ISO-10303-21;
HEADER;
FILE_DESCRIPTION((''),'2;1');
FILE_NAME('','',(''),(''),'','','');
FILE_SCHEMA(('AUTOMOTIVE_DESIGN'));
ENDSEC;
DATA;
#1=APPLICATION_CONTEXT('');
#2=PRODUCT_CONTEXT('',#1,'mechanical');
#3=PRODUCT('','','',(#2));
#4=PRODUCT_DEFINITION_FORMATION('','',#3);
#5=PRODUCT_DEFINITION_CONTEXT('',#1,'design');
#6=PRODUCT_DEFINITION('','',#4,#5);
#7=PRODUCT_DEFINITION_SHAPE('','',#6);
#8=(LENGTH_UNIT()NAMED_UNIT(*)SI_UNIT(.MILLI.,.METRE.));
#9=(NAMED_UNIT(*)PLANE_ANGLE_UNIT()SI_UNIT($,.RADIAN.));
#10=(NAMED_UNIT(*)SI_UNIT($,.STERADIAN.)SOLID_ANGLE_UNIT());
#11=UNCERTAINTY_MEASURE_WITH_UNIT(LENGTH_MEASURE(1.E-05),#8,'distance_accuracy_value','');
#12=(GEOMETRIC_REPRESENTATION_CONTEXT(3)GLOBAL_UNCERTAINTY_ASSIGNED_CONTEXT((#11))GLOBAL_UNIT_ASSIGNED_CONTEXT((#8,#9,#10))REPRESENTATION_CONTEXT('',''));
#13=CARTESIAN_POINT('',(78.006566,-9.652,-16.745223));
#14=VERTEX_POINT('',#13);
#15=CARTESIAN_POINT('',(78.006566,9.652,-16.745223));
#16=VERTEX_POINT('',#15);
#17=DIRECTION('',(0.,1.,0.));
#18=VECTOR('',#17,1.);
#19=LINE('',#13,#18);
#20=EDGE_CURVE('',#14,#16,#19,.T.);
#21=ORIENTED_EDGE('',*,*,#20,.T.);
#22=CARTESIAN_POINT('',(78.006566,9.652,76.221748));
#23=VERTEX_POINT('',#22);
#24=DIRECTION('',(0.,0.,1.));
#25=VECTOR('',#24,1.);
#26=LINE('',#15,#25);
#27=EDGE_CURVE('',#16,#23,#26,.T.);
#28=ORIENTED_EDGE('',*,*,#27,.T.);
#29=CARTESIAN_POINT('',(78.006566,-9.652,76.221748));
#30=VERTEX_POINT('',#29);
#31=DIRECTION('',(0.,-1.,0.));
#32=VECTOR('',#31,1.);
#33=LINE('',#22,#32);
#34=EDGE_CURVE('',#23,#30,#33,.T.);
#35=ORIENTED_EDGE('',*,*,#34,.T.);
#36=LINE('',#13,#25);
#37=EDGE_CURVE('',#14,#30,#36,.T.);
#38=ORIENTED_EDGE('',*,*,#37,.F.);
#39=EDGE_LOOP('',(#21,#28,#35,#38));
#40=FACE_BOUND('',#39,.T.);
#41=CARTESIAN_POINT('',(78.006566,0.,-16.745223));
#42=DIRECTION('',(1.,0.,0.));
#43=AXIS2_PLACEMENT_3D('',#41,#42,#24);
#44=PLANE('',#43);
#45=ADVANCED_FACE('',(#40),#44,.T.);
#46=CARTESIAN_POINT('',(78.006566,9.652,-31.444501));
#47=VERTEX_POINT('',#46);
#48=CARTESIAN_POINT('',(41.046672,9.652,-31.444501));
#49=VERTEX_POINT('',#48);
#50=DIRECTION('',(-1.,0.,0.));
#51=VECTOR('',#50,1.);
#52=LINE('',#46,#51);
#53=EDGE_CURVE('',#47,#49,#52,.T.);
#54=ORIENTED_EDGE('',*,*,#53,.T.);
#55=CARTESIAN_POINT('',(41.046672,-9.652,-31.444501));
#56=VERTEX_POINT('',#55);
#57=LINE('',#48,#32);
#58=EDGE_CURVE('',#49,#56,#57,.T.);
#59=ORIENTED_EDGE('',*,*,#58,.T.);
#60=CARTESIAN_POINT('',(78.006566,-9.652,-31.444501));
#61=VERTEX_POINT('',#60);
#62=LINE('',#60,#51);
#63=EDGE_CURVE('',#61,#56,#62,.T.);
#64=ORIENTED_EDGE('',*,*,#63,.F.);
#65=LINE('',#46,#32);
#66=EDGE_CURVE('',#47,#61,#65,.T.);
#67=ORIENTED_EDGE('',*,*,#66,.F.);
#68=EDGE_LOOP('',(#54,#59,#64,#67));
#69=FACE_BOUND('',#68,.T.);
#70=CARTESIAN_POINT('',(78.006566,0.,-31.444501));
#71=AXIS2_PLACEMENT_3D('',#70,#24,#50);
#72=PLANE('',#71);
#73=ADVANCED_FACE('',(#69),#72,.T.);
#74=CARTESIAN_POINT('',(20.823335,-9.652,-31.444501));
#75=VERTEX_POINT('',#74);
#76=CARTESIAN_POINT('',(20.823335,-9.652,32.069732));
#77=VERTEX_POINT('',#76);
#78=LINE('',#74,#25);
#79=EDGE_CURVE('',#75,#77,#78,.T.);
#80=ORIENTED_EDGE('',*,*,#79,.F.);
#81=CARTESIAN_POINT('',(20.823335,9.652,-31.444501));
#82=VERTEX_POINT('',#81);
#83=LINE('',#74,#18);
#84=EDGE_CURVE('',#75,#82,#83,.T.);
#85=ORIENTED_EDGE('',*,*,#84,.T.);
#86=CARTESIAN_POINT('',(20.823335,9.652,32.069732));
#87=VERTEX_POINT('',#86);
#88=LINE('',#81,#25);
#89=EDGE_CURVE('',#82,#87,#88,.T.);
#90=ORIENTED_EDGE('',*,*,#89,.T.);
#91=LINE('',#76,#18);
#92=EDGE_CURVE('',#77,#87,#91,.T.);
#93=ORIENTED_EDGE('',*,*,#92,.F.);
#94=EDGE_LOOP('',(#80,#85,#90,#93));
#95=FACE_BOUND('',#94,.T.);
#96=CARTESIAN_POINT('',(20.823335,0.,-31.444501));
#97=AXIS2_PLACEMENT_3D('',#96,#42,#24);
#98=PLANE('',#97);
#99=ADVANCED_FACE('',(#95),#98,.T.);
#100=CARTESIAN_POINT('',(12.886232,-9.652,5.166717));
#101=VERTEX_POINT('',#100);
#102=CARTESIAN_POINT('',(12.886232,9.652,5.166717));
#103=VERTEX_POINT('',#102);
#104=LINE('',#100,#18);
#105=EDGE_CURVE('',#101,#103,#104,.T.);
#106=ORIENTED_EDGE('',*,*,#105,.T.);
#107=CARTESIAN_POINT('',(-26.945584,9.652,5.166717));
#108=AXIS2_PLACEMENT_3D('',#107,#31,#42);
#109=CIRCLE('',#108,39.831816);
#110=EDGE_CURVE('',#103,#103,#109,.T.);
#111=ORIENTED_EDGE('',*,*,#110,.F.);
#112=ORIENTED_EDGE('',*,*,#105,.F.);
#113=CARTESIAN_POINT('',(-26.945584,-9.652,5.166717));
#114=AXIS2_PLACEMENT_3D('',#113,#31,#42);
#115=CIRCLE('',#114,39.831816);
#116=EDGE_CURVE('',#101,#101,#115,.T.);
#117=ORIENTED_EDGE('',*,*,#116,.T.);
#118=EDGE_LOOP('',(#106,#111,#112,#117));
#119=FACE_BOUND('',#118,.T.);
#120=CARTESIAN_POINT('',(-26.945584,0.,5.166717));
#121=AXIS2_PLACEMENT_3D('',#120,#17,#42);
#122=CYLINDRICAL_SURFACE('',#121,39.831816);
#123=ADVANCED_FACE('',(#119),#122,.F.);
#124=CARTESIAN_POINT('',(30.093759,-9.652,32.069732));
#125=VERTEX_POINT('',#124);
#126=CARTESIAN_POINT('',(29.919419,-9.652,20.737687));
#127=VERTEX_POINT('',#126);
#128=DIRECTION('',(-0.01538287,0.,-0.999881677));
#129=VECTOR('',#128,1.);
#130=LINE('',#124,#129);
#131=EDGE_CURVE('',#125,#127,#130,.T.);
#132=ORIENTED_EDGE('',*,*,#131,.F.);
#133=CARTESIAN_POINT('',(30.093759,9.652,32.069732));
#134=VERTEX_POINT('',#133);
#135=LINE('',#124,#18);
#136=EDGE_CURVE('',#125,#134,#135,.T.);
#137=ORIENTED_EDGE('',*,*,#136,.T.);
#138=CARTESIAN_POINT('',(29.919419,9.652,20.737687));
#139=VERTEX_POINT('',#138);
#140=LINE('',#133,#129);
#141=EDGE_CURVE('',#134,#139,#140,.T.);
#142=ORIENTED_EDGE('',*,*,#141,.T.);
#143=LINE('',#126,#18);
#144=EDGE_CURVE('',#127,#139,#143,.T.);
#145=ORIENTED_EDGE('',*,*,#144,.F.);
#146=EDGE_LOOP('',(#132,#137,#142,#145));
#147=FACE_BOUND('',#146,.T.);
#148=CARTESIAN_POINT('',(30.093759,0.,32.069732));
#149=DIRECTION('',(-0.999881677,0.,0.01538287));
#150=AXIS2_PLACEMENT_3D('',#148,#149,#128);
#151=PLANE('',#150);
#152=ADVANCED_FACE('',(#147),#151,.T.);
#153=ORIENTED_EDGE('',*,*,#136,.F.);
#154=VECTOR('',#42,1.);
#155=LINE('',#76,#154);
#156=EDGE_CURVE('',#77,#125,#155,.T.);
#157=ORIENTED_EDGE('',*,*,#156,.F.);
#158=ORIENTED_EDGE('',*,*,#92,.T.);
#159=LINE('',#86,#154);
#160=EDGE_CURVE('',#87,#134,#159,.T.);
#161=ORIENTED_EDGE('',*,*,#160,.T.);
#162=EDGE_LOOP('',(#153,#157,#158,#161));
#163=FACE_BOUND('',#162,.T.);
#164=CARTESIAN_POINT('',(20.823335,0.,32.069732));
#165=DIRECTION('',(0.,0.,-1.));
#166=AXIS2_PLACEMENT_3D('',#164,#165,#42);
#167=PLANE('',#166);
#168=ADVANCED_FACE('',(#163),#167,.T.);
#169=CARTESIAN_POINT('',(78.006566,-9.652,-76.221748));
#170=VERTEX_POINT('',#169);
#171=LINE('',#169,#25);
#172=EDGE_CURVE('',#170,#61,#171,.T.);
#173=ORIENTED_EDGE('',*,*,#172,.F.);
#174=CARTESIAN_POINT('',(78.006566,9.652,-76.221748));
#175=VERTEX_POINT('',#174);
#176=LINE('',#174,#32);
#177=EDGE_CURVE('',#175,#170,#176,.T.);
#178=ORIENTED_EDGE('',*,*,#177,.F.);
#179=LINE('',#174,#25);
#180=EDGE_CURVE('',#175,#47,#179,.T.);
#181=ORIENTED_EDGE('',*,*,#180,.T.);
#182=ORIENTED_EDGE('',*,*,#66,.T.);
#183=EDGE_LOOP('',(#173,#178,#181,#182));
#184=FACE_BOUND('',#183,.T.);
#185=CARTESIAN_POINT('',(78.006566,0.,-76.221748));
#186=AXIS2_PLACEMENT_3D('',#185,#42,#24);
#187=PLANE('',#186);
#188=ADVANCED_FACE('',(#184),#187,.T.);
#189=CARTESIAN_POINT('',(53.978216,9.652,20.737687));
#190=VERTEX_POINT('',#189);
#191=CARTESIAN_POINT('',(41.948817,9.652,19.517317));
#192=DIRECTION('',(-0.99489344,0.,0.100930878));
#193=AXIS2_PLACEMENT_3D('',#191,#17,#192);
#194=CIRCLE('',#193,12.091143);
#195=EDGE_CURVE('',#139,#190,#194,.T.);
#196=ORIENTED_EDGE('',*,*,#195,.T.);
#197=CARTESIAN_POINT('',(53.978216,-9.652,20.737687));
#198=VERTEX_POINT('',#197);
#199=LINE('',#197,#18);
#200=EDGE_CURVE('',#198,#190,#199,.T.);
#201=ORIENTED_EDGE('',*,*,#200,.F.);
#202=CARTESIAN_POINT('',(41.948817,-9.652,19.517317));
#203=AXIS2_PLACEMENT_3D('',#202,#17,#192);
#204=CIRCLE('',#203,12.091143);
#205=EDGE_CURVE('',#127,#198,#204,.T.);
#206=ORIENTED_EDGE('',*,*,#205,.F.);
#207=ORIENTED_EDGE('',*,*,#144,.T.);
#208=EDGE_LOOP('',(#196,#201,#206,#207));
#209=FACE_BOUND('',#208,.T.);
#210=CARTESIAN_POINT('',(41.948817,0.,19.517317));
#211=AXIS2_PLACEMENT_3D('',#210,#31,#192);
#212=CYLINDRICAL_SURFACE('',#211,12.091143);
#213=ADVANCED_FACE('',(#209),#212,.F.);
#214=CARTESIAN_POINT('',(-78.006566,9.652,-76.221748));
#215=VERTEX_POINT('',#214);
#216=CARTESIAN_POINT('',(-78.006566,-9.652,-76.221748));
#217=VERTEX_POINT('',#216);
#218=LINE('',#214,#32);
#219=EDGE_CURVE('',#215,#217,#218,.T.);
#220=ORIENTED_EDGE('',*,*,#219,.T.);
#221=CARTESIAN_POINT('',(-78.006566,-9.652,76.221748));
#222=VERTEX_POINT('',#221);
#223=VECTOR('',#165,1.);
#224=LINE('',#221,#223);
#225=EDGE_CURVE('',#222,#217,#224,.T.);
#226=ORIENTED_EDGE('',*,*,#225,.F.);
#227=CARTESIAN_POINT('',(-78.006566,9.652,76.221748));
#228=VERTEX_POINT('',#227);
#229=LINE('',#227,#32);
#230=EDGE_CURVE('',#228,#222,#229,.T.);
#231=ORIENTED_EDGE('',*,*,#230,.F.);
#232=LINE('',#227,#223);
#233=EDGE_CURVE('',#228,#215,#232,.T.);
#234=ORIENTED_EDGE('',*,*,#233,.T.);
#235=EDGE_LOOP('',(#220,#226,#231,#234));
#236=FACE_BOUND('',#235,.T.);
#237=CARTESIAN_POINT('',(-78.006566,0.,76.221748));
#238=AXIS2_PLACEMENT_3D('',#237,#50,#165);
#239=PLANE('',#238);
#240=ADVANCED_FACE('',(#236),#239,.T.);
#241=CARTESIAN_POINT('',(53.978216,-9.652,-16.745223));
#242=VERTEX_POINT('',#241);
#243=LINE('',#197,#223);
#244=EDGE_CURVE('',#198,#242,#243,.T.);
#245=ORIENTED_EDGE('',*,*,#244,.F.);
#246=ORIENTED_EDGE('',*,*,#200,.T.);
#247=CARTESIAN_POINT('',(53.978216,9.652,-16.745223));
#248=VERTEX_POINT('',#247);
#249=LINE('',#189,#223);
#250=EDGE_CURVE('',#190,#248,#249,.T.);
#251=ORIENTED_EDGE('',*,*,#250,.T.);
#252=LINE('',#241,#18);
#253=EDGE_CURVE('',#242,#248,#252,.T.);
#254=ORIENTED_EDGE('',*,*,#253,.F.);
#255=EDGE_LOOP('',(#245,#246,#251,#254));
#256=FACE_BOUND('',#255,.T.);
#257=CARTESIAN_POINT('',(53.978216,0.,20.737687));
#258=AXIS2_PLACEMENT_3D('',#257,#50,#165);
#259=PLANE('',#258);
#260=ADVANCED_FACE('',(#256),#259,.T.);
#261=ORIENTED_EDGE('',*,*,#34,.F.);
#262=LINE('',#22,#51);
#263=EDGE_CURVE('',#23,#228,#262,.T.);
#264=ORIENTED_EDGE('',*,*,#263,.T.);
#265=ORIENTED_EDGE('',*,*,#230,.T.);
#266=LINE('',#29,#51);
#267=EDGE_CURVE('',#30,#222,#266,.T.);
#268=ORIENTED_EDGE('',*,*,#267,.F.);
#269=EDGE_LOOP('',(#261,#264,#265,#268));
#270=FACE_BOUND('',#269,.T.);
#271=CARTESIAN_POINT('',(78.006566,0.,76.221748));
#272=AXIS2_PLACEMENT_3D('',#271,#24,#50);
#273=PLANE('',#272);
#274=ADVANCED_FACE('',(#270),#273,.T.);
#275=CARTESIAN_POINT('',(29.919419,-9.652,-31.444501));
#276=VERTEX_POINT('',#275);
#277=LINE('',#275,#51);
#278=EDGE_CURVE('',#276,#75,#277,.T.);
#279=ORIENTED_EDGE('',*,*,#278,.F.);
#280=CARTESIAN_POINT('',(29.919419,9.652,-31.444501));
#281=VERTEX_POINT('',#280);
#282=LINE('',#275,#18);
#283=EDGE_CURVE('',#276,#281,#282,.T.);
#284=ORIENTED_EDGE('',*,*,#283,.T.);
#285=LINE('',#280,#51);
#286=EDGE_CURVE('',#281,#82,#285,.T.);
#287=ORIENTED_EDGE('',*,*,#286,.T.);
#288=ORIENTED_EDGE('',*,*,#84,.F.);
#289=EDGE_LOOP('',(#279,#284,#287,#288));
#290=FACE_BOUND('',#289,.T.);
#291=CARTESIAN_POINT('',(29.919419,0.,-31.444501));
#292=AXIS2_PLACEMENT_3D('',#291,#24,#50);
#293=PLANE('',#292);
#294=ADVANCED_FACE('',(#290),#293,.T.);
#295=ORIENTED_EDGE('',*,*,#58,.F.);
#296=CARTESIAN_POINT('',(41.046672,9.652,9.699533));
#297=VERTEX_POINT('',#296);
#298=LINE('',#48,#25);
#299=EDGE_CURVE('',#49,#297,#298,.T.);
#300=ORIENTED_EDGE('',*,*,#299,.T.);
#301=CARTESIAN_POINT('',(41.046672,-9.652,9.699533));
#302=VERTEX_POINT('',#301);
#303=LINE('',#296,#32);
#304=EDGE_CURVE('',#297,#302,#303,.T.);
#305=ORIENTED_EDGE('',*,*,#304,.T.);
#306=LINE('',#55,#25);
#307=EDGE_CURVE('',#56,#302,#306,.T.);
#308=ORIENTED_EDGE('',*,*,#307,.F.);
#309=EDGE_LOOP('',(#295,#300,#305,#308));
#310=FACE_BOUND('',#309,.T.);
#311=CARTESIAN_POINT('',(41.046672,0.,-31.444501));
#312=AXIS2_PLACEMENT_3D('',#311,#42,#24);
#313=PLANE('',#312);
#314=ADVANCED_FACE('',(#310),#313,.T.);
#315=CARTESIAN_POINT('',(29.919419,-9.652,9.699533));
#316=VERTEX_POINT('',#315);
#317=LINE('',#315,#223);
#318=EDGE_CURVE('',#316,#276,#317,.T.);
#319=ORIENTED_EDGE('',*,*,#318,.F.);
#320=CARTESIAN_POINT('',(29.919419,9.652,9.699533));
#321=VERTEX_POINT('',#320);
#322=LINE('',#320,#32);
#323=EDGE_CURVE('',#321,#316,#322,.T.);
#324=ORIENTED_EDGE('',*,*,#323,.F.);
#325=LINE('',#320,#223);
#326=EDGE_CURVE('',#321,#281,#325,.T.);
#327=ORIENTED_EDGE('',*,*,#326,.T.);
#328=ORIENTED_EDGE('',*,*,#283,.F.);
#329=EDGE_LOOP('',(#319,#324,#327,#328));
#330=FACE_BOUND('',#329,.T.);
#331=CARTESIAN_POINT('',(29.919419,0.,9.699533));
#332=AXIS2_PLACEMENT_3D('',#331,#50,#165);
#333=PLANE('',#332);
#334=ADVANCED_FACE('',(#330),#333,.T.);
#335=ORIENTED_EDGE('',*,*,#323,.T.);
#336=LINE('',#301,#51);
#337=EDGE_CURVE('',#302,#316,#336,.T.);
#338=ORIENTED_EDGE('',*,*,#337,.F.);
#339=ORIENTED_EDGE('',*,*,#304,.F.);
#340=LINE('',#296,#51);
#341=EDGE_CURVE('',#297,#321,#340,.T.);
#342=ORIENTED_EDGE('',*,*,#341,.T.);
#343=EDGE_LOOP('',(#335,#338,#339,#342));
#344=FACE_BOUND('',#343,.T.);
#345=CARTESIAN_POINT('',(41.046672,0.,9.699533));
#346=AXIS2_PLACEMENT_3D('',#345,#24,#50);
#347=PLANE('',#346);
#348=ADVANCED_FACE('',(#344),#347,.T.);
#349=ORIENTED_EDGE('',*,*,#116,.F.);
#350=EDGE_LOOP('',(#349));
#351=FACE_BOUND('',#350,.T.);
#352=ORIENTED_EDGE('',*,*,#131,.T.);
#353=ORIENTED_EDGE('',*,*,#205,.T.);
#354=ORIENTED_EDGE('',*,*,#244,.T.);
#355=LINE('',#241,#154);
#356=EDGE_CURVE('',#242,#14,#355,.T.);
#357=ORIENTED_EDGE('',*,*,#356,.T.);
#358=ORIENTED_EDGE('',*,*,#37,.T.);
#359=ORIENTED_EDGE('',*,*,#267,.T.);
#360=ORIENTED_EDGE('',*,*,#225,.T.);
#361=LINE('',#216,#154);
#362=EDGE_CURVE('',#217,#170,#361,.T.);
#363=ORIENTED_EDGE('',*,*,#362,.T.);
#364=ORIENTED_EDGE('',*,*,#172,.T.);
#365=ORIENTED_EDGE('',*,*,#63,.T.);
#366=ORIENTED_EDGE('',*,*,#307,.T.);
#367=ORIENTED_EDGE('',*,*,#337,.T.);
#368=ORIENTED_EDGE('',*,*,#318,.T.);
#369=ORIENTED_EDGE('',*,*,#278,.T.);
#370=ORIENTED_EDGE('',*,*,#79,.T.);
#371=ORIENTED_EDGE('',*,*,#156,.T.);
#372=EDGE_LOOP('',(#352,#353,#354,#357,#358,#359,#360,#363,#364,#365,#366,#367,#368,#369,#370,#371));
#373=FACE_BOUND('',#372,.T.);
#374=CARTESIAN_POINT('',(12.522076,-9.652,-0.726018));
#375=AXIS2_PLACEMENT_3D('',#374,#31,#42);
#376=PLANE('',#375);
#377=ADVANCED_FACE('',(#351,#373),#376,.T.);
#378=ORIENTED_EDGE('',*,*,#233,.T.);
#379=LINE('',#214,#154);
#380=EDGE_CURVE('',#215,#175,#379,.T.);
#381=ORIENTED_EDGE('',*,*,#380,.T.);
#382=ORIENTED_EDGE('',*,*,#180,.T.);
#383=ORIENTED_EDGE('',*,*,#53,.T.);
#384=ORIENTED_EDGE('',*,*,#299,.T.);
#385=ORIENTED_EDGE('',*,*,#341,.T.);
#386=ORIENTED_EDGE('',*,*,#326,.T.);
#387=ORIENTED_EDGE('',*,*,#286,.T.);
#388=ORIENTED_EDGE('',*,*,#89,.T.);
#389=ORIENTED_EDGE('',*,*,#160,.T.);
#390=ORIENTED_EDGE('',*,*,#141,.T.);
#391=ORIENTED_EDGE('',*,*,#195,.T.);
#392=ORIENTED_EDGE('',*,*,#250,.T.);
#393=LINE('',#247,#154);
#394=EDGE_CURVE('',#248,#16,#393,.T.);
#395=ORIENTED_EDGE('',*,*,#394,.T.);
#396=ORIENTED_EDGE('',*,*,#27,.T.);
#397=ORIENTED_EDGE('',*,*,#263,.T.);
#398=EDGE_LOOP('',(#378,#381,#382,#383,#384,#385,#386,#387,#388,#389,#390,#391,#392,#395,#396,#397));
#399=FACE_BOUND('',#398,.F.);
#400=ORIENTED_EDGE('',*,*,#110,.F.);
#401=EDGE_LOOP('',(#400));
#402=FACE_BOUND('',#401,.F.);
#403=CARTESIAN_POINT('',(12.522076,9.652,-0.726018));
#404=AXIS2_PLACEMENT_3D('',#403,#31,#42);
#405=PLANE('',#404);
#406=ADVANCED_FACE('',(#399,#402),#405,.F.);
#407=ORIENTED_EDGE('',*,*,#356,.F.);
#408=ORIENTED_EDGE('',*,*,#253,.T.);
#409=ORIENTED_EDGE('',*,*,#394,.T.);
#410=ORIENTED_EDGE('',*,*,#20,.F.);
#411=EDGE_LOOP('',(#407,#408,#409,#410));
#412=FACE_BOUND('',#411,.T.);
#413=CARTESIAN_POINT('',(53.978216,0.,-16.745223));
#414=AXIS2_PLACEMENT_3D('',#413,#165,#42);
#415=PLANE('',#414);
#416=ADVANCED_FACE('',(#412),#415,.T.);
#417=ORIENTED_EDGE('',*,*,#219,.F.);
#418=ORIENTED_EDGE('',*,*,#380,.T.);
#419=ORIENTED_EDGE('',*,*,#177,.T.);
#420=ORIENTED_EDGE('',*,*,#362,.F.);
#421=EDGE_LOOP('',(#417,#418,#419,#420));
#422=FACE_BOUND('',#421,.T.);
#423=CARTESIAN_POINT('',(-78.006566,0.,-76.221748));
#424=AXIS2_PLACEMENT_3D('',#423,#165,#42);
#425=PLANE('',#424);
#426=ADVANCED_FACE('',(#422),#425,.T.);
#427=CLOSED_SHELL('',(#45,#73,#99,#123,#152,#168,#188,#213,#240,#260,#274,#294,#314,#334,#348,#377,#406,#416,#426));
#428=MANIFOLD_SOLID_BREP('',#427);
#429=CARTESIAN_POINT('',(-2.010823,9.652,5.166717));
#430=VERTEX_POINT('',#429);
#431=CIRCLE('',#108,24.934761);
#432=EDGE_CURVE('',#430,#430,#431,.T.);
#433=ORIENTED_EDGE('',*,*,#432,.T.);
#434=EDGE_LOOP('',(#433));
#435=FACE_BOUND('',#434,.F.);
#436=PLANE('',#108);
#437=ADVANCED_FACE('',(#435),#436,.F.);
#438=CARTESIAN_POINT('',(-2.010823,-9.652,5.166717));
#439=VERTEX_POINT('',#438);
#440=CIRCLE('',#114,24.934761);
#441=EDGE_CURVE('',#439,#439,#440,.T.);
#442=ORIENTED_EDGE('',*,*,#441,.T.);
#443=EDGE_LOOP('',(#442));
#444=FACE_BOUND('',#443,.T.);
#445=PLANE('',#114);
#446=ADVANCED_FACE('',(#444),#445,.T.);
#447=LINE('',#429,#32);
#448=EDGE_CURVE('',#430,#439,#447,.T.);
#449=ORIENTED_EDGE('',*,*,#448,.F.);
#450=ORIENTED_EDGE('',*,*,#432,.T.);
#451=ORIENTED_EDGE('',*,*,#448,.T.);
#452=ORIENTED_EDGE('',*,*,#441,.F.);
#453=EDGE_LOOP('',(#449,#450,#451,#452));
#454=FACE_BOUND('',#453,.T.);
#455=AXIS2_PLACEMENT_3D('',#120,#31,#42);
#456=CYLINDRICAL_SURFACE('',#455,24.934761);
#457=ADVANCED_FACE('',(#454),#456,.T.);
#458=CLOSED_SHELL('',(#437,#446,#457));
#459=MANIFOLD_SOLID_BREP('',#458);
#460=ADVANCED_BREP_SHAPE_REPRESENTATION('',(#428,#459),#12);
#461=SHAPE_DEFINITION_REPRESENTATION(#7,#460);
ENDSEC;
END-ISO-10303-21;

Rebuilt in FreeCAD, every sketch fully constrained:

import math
import FreeCAD as App
import Part
import Sketcher

V = App.Vector
Q = App.Units.Quantity

doc = App.newDocument("Part")
body = doc.addObject("PartDesign::Body", "Body")

sketch1 = body.newObject("Sketcher::SketchObject", "Sketch")
sketch1.AttachmentSupport = (doc.getObject("XZ_Plane"), [""])
sketch1.MapMode = "FlatFace"
sketch1.addGeometry([
    Part.LineSegment(V(78, -17, 0), V(78, 76, 0)),
    Part.LineSegment(V(78, 76, 0), V(-78, 76, 0)),
    Part.LineSegment(V(-78, 76, 0), V(-78, -76, 0)),
    Part.LineSegment(V(-78, -76, 0), V(78, -76, 0)),
    Part.LineSegment(V(78, -76, 0), V(78, -31, 0)),
    Part.LineSegment(V(78, -31, 0), V(41, -31, 0)),
    Part.LineSegment(V(41, -31, 0), V(41, 10, 0)),
    Part.LineSegment(V(41, 10, 0), V(30, 10, 0)),
    Part.LineSegment(V(30, 10, 0), V(30, -31, 0)),
    Part.LineSegment(V(30, -31, 0), V(21, -31, 0)),
    Part.LineSegment(V(21, -31, 0), V(21, 32, 0)),
    Part.LineSegment(V(21, 32, 0), V(30, 32, 0)),
    Part.LineSegment(V(30, 32, 0), V(30, 21, 0)),
    Part.ArcOfCircle(Part.Circle(V(42, 20, 0), V(0, 0, 1), 12), math.radians(6), math.radians(174)),
    Part.LineSegment(V(54, 21, 0), V(54, -17, 0)),
    Part.LineSegment(V(54, -17, 0), V(78, -17, 0)),
    Part.Circle(V(-27, 5, 0), V(0, 0, 1), 40),
], False)
sketch1.addConstraint([
    Sketcher.Constraint("Coincident", 0, 2, 1, 1),
    Sketcher.Constraint("Coincident", 1, 2, 2, 1),
    Sketcher.Constraint("Coincident", 2, 2, 3, 1),
    Sketcher.Constraint("Coincident", 3, 2, 4, 1),
    Sketcher.Constraint("Coincident", 4, 2, 5, 1),
    Sketcher.Constraint("Coincident", 5, 2, 6, 1),
    Sketcher.Constraint("Coincident", 6, 2, 7, 1),
    Sketcher.Constraint("Coincident", 7, 2, 8, 1),
    Sketcher.Constraint("Coincident", 8, 2, 9, 1),
    Sketcher.Constraint("Coincident", 9, 2, 10, 1),
    Sketcher.Constraint("Coincident", 10, 2, 11, 1),
    Sketcher.Constraint("Coincident", 11, 2, 12, 1),
    Sketcher.Constraint("Coincident", 12, 2, 13, 2),
    Sketcher.Constraint("Coincident", 13, 1, 14, 1),
    Sketcher.Constraint("Coincident", 14, 2, 15, 1),
    Sketcher.Constraint("Coincident", 15, 2, 0, 1),
    Sketcher.Constraint("Vertical", 0),
    Sketcher.Constraint("Horizontal", 1),
    Sketcher.Constraint("Vertical", 2),
    Sketcher.Constraint("Horizontal", 3),
    Sketcher.Constraint("Vertical", 4),
    Sketcher.Constraint("Horizontal", 5),
    Sketcher.Constraint("Vertical", 6),
    Sketcher.Constraint("Horizontal", 7),
    Sketcher.Constraint("Vertical", 8),
    Sketcher.Constraint("Horizontal", 9),
    Sketcher.Constraint("Vertical", 10),
    Sketcher.Constraint("Horizontal", 11),
    Sketcher.Constraint("Vertical", 14),
    Sketcher.Constraint("Horizontal", 15),
    Sketcher.Constraint("Symmetric", 0, 2, 2, 2, -1, 1),
    Sketcher.Constraint("Horizontal", 5, 2, 8, 2),
    Sketcher.Constraint("Horizontal", 12, 2, 13, 1),
    Sketcher.Constraint("Vertical", 0, 2, 3, 2),
    Sketcher.Constraint("Vertical", 8, 2, 12, 2),
    Sketcher.Constraint("Diameter", 16, Q("79.663632 mm")),
    Sketcher.Constraint("Radius", 13, Q("12.091143 mm")),
    Sketcher.Constraint("DistanceX", 15, 1, 15, 2, Q("24.02835 mm")),
    Sketcher.Constraint("DistanceY", 0, 1, 0, 2, Q("92.966971 mm")),
    Sketcher.Constraint("DistanceY", 14, 2, 14, 1, Q("37.48291 mm")),
    Sketcher.Constraint("DistanceY", 4, 2, -1, 1, Q("31.444501 mm")),
    Sketcher.Constraint("DistanceX", 16, 3, 13, 3, Q("68.894402 mm")),
    Sketcher.Constraint("DistanceY", 16, 3, 13, 3, Q("14.3506 mm")),
    Sketcher.Constraint("DistanceX", 7, 2, 13, 3, Q("12.029398 mm")),
    Sketcher.Constraint("DistanceY", 7, 2, 10, 2, Q("22.370199 mm")),
    Sketcher.Constraint("DistanceX", 1, 2, 1, 1, Q("156.013132 mm")),
    Sketcher.Constraint("DistanceX", 5, 2, 5, 1, Q("36.959894 mm")),
    Sketcher.Constraint("DistanceX", 9, 2, 9, 1, Q("9.096084 mm")),
    Sketcher.Constraint("DistanceX", 11, 1, 11, 2, Q("9.270424 mm")),
    Sketcher.Constraint("DistanceY", 2, 2, 2, 1, Q("152.443496 mm")),
    Sketcher.Constraint("DistanceY", 6, 1, 6, 2, Q("41.144034 mm")),
])
pad1 = body.newObject("PartDesign::Pad", "Pad")
pad1.Profile = sketch1
pad1.Length = Q("0.76 in")
pad1.Midplane = True
body2 = doc.addObject("PartDesign::Body", "Body001")

sketch2 = body2.newObject("Sketcher::SketchObject", "Sketch001")
sketch2.AttachmentSupport = (doc.getObject("XZ_Plane001"), [""])
sketch2.MapMode = "FlatFace"
sketch2.addGeometry(Part.Circle(V(-27, 5, 0), V(0, 0, 1), 25), False)
sketch2.addConstraint([
    Sketcher.Constraint("Diameter", 0, Q("49.869522 mm")),
    Sketcher.Constraint("DistanceX", 0, 3, -1, 1, Q("26.945584 mm")),
    Sketcher.Constraint("DistanceY", -1, 1, 0, 3, Q("5.166717 mm")),
])
pad2 = body2.newObject("PartDesign::Pad", "Pad001")
pad2.Profile = sketch2
pad2.Length = Q("0.76 in")
pad2.Midplane = True

doc.recompute()
